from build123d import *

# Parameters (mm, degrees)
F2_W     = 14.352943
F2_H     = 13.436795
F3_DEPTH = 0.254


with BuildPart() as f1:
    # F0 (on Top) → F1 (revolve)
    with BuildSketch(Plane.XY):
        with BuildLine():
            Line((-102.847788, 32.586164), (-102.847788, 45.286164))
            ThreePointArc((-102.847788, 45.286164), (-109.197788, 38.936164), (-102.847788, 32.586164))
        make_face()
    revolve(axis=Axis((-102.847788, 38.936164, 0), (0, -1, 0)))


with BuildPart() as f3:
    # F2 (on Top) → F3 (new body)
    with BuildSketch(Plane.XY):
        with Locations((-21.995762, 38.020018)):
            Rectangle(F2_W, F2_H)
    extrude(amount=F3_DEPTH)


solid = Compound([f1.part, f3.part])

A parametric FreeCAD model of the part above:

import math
import FreeCAD as App
import Part
import Sketcher
from FreeCAD import Vector
Q = App.Units.Quantity

doc = App.newDocument("Part")
body = doc.addObject("PartDesign::Body", "Body")

sketch1 = body.newObject("Sketcher::SketchObject", "Sketch")
sketch1.AttachmentSupport = (doc.getObject("XY_Plane"), [""])
sketch1.MapMode = "FlatFace"
sketch1.addGeometry(Part.LineSegment(Vector(-103, 33, 0), Vector(-103, 45, 0)), False)
sketch1.addGeometry(Part.ArcOfCircle(Part.Circle(Vector(-103, 39, 0), Vector(0, 0, 1), 6), math.radians(90), math.radians(270)), False)
sketch1.addGeometry(Part.LineSegment(Vector(-103, 45, 0), Vector(-103, 33, 0)), True)
sketch1.addConstraint(Sketcher.Constraint("Coincident", 0, 1, 1, 2))
sketch1.addConstraint(Sketcher.Constraint("Coincident", 1, 1, 0, 2))
sketch1.addConstraint(Sketcher.Constraint("Vertical", 0))
sketch1.addConstraint(Sketcher.Constraint("Vertical", 2))
sketch1.addConstraint(Sketcher.Constraint("Coincident", 2, 1, 1, 1))
sketch1.addConstraint(Sketcher.Constraint("Vertical", 1, 3, 0, 1))
sketch1.addConstraint(Sketcher.Constraint("Equal", 0, 2))
sketch1.addConstraint(Sketcher.Constraint("Radius", 1, Q("0.25 in")))
sketch1.addConstraint(Sketcher.Constraint("DistanceX", 1, 3, -1, 1, Q("102.847788 mm")))
sketch1.addConstraint(Sketcher.Constraint("DistanceY", -1, 1, 1, 3, Q("38.936164 mm")))
revolution = body.newObject("PartDesign::Revolution", "Revolution")
revolution.Profile = sketch1
revolution.ReferenceAxis = (sketch1, ["Axis0"])
revolution.Angle = 360
body2 = doc.addObject("PartDesign::Body", "Body001")

sketch2 = body2.newObject("Sketcher::SketchObject", "Sketch001")
sketch2.AttachmentSupport = (doc.getObject("XY_Plane001"), [""])
sketch2.MapMode = "FlatFace"
sketch2.addGeometry(Part.LineSegment(Vector(-29, 45, 0), Vector(-29, 31, 0)), False)
sketch2.addGeometry(Part.LineSegment(Vector(-29, 31, 0), Vector(-15, 31, 0)), False)
sketch2.addGeometry(Part.LineSegment(Vector(-15, 31, 0), Vector(-15, 45, 0)), False)
sketch2.addGeometry(Part.LineSegment(Vector(-15, 45, 0), Vector(-29, 45, 0)), False)
sketch2.addConstraint(Sketcher.Constraint("Coincident", 0, 2, 1, 1))
sketch2.addConstraint(Sketcher.Constraint("Coincident", 1, 2, 2, 1))
sketch2.addConstraint(Sketcher.Constraint("Coincident", 2, 2, 3, 1))
sketch2.addConstraint(Sketcher.Constraint("Coincident", 3, 2, 0, 1))
sketch2.addConstraint(Sketcher.Constraint("Vertical", 0))
sketch2.addConstraint(Sketcher.Constraint("Horizontal", 1))
sketch2.addConstraint(Sketcher.Constraint("Vertical", 2))
sketch2.addConstraint(Sketcher.Constraint("Horizontal", 3))
sketch2.addConstraint(Sketcher.Constraint("DistanceX", 1, 1, 1, 2, Q("14.352943 mm")))
sketch2.addConstraint(Sketcher.Constraint("DistanceY", 0, 2, 0, 1, Q("13.436795 mm")))
sketch2.addConstraint(Sketcher.Constraint("DistanceY", -1, 1, 0, 2, Q("31.30162 mm")))
sketch2.addConstraint(Sketcher.Constraint("DistanceX", 1, 2, -1, 1, Q("14.81929 mm")))
pad1 = body2.newObject("PartDesign::Pad", "Pad")
pad1.Profile = sketch2
pad1.Length = Q("0.01 in")

doc.recompute()
